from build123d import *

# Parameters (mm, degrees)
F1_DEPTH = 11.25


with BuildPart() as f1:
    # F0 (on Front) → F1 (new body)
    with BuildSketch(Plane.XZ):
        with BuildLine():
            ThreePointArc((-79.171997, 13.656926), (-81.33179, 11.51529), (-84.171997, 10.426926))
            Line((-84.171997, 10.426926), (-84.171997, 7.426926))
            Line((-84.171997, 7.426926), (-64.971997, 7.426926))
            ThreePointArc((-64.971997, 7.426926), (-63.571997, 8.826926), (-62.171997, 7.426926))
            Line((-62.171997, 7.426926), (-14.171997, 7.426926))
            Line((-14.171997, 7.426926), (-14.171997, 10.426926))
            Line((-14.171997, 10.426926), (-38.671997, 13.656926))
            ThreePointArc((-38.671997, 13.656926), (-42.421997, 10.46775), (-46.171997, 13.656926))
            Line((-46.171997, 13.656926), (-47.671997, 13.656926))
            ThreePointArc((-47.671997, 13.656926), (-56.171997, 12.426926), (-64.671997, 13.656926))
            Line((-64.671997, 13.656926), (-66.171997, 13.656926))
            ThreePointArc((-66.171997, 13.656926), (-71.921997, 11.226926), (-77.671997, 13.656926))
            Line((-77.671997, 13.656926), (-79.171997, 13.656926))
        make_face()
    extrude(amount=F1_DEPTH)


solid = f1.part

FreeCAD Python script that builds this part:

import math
import FreeCAD as App
import Part
import Sketcher

V = App.Vector

doc = App.newDocument("Part")
params = doc.addObject("Spreadsheet::Sheet", "Params")
for row, (alias, value) in enumerate([
    ("sketch1_radius", "1.4 mm"),
    ("sketch1_width", "48 mm"),
    ("sketch1_height", "3 mm"),
    ("sketch1_width2", "19.2 mm"),
    ("sketch1_width3", "1.5 mm"),
    ("pad1_length", "11.25 mm"),
], start=1):
    params.set(f"A{row}", alias)
    params.set(f"B{row}", "=" + value)
    params.setAlias(f"B{row}", alias)

body = doc.addObject("PartDesign::Body", "Body")

# Sketch on XZ plane
sketch1 = body.newObject("Sketcher::SketchObject", "Sketch")
sketch1.AttachmentSupport = (doc.getObject("XZ_Plane"), [""])
sketch1.MapMode = "FlatFace"
sketch1.addGeometry([
    Part.ArcOfCircle(Part.Circle(V(-85.3, 17.7, 0), V(0, 0, 1), 7.4), math.radians(-81), math.radians(-33)),  # 0
    Part.LineSegment(V(-84.2, 10.4, 0), V(-84.2, 7.4, 0)),  # 1
    Part.LineSegment(V(-84.2, 7.4, 0), V(-65, 7.4, 0)),  # 2
    Part.ArcOfCircle(Part.Circle(V(-63.6, 7.4, 0), V(0, 0, 1), 1.4), math.radians(0), math.radians(180)),  # 3
    Part.LineSegment(V(-62.2, 7.4, 0), V(-14.2, 7.4, 0)),  # 4
    Part.LineSegment(V(-14.2, 7.4, 0), V(-14.2, 10.4, 0)),  # 5
    Part.LineSegment(V(-14.2, 10.4, 0), V(-38.7, 13.7, 0)),  # 6
    Part.ArcOfCircle(Part.Circle(V(-42.4, 14.3, 0), V(0, 0, 1), 3.8), math.radians(-171), math.radians(-9)),  # 7
    Part.LineSegment(V(-46.2, 13.7, 0), V(-47.7, 13.7, 0)),  # 8
    Part.ArcOfCircle(Part.Circle(V(-56.2, 42.4, 0), V(0, 0, 1), 30), math.radians(-106), math.radians(-74)),  # 9
    Part.LineSegment(V(-64.7, 13.7, 0), V(-66.2, 13.7, 0)),  # 10
    Part.ArcOfCircle(Part.Circle(V(-71.9, 19.2, 0), V(0, 0, 1), 8), math.radians(-136), math.radians(-44)),  # 11
    Part.LineSegment(V(-77.7, 13.7, 0), V(-79.2, 13.7, 0)),  # 12
], False)
sketch1.addConstraint([
    Sketcher.Constraint("Coincident", 0, 1, 1, 1),
    Sketcher.Constraint("Coincident", 1, 2, 2, 1),
    Sketcher.Constraint("Coincident", 2, 2, 3, 2),
    Sketcher.Constraint("Coincident", 3, 1, 4, 1),
    Sketcher.Constraint("Coincident", 4, 2, 5, 1),
    Sketcher.Constraint("Coincident", 5, 2, 6, 1),
    Sketcher.Constraint("Coincident", 6, 2, 7, 2),
    Sketcher.Constraint("Coincident", 7, 1, 8, 1),
    Sketcher.Constraint("Coincident", 8, 2, 9, 2),
    Sketcher.Constraint("Coincident", 9, 1, 10, 1),
    Sketcher.Constraint("Coincident", 10, 2, 11, 2),
    Sketcher.Constraint("Coincident", 11, 1, 12, 1),
    Sketcher.Constraint("Coincident", 12, 2, 0, 2),
    Sketcher.Constraint("Vertical", 1),
    Sketcher.Constraint("Horizontal", 2),
    Sketcher.Constraint("Horizontal", 4),
    Sketcher.Constraint("Vertical", 5),
    Sketcher.Constraint("Horizontal", 8),
    Sketcher.Constraint("Horizontal", 10),
    Sketcher.Constraint("Horizontal", 12),
    Sketcher.Constraint("Horizontal", 3, 3, 1, 2),
    Sketcher.Constraint("Horizontal", 2, 2, 3, 1),
    Sketcher.Constraint("Horizontal", 0, 1, 5, 2),
    Sketcher.Constraint("Horizontal", 6, 2, 7, 1),
    Sketcher.Constraint("Horizontal", 8, 2, 9, 1),
    Sketcher.Constraint("Horizontal", 10, 2, 11, 1),
    Sketcher.Constraint("Equal", 8, 10),
    Sketcher.Constraint("Equal", 10, 12),
    Sketcher.Constraint("Radius", 3, 1.4),
    Sketcher.Constraint("DistanceX", 4, 1, 4, 2, 48.0),
    Sketcher.Constraint("DistanceY", 1, 2, 1, 1, 3.0),
    Sketcher.Constraint("DistanceX", 2, 1, 2, 2, 19.2),
    Sketcher.Constraint("DistanceX", 8, 2, 8, 1, 1.5),
    Sketcher.Constraint("DistanceX", 0, 1, 9, 3, 28.0),
    Sketcher.Constraint("DistanceX", 3, 1, 7, 1, 16.0),
    Sketcher.Constraint("DistanceX", 8, 2, 6, 2, 9.0),
    Sketcher.Constraint("DistanceX", 0, 1, 12, 2, 5.0),
    Sketcher.Constraint("Radius", 7, 3.799311),
    Sketcher.Constraint("Radius", 9, 29.984919),
    Sketcher.Constraint("DistanceY", 3, 1, 6, 2, 6.23),
    Sketcher.Constraint("Radius", 0, 7.377842),
    Sketcher.Constraint("Radius", 11, 8.017984),
    Sketcher.Constraint("DistanceY", -1, 1, 7, 3, 14.267061),
    Sketcher.Constraint("DistanceX", 0, 3, -1, 1, 85.335186),
])
sketch1.setExpression("Constraints[28]", "Params.sketch1_radius")
sketch1.setExpression("Constraints[29]", "Params.sketch1_width")
sketch1.setExpression("Constraints[30]", "Params.sketch1_height")
sketch1.setExpression("Constraints[31]", "Params.sketch1_width2")
sketch1.setExpression("Constraints[32]", "Params.sketch1_width3")
pad1 = body.newObject("PartDesign::Pad", "Pad")
pad1.Profile = sketch1
pad1.setExpression("Length", "Params.pad1_length")

doc.recompute()
